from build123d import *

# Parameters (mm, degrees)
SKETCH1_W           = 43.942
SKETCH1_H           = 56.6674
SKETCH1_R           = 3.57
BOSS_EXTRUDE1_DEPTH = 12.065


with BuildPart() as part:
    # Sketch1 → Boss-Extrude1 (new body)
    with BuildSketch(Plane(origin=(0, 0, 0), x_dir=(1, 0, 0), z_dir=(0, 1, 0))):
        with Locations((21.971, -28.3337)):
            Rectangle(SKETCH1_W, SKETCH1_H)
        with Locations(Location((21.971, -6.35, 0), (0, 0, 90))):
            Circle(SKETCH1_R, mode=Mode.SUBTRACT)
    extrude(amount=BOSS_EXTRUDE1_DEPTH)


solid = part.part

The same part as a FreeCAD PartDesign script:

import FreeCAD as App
import Part
import Sketcher

V = App.Vector
Q = App.Units.Quantity

doc = App.newDocument("Part")
params = doc.addObject("Spreadsheet::Sheet", "Params")
for row, (alias, value) in enumerate([
    ("sketch1_width", "1.73 in"),
    ("sketch1_height", "2.231 in"),
    ("pad1_length", "0.475 in"),
], start=1):
    params.set(f"A{row}", alias)
    params.set(f"B{row}", "=" + value)
    params.setAlias(f"B{row}", alias)

body = doc.addObject("PartDesign::Body", "Body")

# Sketch on XZ plane
sketch1 = body.newObject("Sketcher::SketchObject", "Sketch")
sketch1.AttachmentSupport = (doc.getObject("XZ_Plane"), [""])
sketch1.MapMode = "FlatFace"
sketch1.addGeometry(Part.LineSegment(V(0, 0, 0), V(0, 56.7, 0)), False)
sketch1.addGeometry(Part.LineSegment(V(0, 56.7, 0), V(43.9, 56.7, 0)), False)
sketch1.addGeometry(Part.LineSegment(V(43.9, 56.7, 0), V(43.9, 0, 0)), False)
sketch1.addGeometry(Part.LineSegment(V(43.9, 0, 0), V(0, 0, 0)), False)
sketch1.addGeometry(Part.Circle(V(22, 6.3, 0), V(0, 0, 1), 3.6), False)
sketch1.addConstraint(Sketcher.Constraint("Coincident", 0, 2, 1, 1))
sketch1.addConstraint(Sketcher.Constraint("Coincident", 1, 2, 2, 1))
sketch1.addConstraint(Sketcher.Constraint("Coincident", 2, 2, 3, 1))
sketch1.addConstraint(Sketcher.Constraint("Coincident", 3, 2, 0, 1))
sketch1.addConstraint(Sketcher.Constraint("Vertical", 0))
sketch1.addConstraint(Sketcher.Constraint("Horizontal", 1))
sketch1.addConstraint(Sketcher.Constraint("Vertical", 2))
sketch1.addConstraint(Sketcher.Constraint("Horizontal", 3))
sketch1.addConstraint(Sketcher.Constraint("Coincident", 3, 2, -1, 1))
sketch1.addConstraint(Sketcher.Constraint("DistanceX", 1, 1, 1, 2, Q("1.73 in")))
sketch1.addConstraint(Sketcher.Constraint("Diameter", 4, Q("7.14 mm")))
sketch1.addConstraint(Sketcher.Constraint("DistanceY", 0, 1, 0, 2, Q("2.231 in")))
sketch1.addConstraint(Sketcher.Constraint("DistanceY", -1, 1, 4, 3, Q("0.25 in")))
sketch1.addConstraint(Sketcher.Constraint("DistanceX", -1, 1, 4, 3, Q("0.865 in")))
sketch1.setExpression("Constraints[9]", "Params.sketch1_width")
sketch1.setExpression("Constraints[11]", "Params.sketch1_height")
pad1 = body.newObject("PartDesign::Pad", "Pad")
pad1.Profile = sketch1
pad1.setExpression("Length", "Params.pad1_length")
pad1.Reversed = True

doc.recompute()
